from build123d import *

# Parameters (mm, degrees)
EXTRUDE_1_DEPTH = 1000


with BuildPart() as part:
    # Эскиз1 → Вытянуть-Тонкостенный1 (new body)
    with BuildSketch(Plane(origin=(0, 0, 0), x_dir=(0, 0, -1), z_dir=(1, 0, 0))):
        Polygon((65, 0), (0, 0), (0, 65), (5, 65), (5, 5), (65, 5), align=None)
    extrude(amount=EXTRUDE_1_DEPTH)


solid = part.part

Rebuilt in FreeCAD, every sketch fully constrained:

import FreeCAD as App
import Part
import Sketcher
from FreeCAD import Vector
Q = App.Units.Quantity


def add_polygon(sketch, points):
    """Adds a closed chain of lines whose ends are joined by coincident constraints."""
    first, n = sketch.GeometryCount, len(points)
    for a, b in zip(points, points[1:] + points[:1]):
        sketch.addGeometry(Part.LineSegment(App.Vector(*a, 0), App.Vector(*b, 0)), False)
    for i in range(n):
        sketch.addConstraint(Sketcher.Constraint("Coincident", first + i, 2, first + (i + 1) % n, 1))

doc = App.newDocument("Part")
body = doc.addObject("PartDesign::Body", "Body")

sketch1 = body.newObject("Sketcher::SketchObject", "Sketch")
sketch1.AttachmentSupport = (doc.getObject("YZ_Plane"), [""])
sketch1.MapMode = "FlatFace"
add_polygon(sketch1, [(0, 0), (0, -65), (5, -65), (5, -5), (65, -5), (65, 0)])
sketch1.addConstraint(Sketcher.Constraint("Vertical", 0))
sketch1.addConstraint(Sketcher.Constraint("Horizontal", 1))
sketch1.addConstraint(Sketcher.Constraint("Vertical", 2))
sketch1.addConstraint(Sketcher.Constraint("Horizontal", 3))
sketch1.addConstraint(Sketcher.Constraint("Vertical", 4))
sketch1.addConstraint(Sketcher.Constraint("Horizontal", 5))
sketch1.addConstraint(Sketcher.Constraint("Coincident", 5, 2, -1, 1))
sketch1.addConstraint(Sketcher.Constraint("Equal", 5, 0))
sketch1.addConstraint(Sketcher.Constraint("Equal", 3, 2))
sketch1.addConstraint(Sketcher.Constraint("DistanceX", 1, 1, 1, 2, Q("5 mm")))
sketch1.addConstraint(Sketcher.Constraint("DistanceX", 3, 1, 3, 2, Q("60 mm")))
pad1 = body.newObject("PartDesign::Pad", "Pad")
pad1.Profile = sketch1
pad1.Length = 1000

doc.recompute()
